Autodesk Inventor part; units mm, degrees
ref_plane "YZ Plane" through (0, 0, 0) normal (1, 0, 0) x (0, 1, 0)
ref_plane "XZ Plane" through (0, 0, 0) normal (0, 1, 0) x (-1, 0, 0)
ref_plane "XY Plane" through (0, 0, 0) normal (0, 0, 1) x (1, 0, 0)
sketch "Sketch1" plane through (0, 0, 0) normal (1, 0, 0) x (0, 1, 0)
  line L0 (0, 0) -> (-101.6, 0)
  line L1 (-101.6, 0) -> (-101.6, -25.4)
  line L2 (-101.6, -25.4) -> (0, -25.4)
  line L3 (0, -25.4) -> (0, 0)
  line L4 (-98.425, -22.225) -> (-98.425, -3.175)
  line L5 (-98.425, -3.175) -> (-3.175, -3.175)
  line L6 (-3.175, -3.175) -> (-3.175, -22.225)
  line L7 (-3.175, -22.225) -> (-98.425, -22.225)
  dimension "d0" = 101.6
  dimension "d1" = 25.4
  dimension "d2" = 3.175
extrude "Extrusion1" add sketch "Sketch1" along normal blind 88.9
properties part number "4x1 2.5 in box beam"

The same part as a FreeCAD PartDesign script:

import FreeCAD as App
import Part
import Sketcher

V = App.Vector
Q = App.Units.Quantity

doc = App.newDocument("Part")
body = doc.addObject("PartDesign::Body", "Body")

sketch1 = body.newObject("Sketcher::SketchObject", "Sketch")
sketch1.AttachmentSupport = (doc.getObject("YZ_Plane"), [""])
sketch1.MapMode = "FlatFace"
sketch1.addGeometry([
    Part.LineSegment(V(0, -25.4, 0), V(0, 0, 0)),
    Part.LineSegment(V(0, 0, 0), V(-101.6, 0, 0)),
    Part.LineSegment(V(-101.6, 0, 0), V(-101.6, -25.4, 0)),
    Part.LineSegment(V(-101.6, -25.4, 0), V(0, -25.4, 0)),
    Part.LineSegment(V(-3.175, -22.225, 0), V(-98.425, -22.225, 0)),
    Part.LineSegment(V(-98.425, -22.225, 0), V(-98.425, -3.175, 0)),
    Part.LineSegment(V(-98.425, -3.175, 0), V(-3.175, -3.175, 0)),
    Part.LineSegment(V(-3.175, -3.175, 0), V(-3.175, -22.225, 0)),
], False)
sketch1.addConstraint([
    Sketcher.Constraint("Coincident", 0, 2, 1, 1),
    Sketcher.Constraint("Coincident", 1, 2, 2, 1),
    Sketcher.Constraint("Coincident", 2, 2, 3, 1),
    Sketcher.Constraint("Coincident", 3, 2, 0, 1),
    Sketcher.Constraint("Coincident", 4, 2, 5, 1),
    Sketcher.Constraint("Coincident", 5, 2, 6, 1),
    Sketcher.Constraint("Coincident", 6, 2, 7, 1),
    Sketcher.Constraint("Coincident", 7, 2, 4, 1),
    Sketcher.Constraint("Vertical", 0),
    Sketcher.Constraint("Horizontal", 1),
    Sketcher.Constraint("Vertical", 2),
    Sketcher.Constraint("Horizontal", 3),
    Sketcher.Constraint("Horizontal", 4),
    Sketcher.Constraint("Vertical", 5),
    Sketcher.Constraint("Horizontal", 6),
    Sketcher.Constraint("Vertical", 7),
    Sketcher.Constraint("Coincident", 0, 2, -1, 1),
    Sketcher.Constraint("DistanceX", 1, 2, 1, 1, Q("4 in")),
    Sketcher.Constraint("DistanceY", 0, 1, 0, 2, Q("1 in")),
    Sketcher.Constraint("DistanceY", 5, 2, -1, 1, Q("0.125 in")),
    Sketcher.Constraint("DistanceX", 6, 2, -1, 1, Q("0.125 in")),
    Sketcher.Constraint("DistanceX", 2, 2, 4, 2, Q("0.125 in")),
    Sketcher.Constraint("DistanceY", 2, 2, 4, 2, Q("0.125 in")),
])
pad1 = body.newObject("PartDesign::Pad", "Pad")
pad1.Profile = sketch1
pad1.Length = Q("3.5 in")

doc.recompute()
